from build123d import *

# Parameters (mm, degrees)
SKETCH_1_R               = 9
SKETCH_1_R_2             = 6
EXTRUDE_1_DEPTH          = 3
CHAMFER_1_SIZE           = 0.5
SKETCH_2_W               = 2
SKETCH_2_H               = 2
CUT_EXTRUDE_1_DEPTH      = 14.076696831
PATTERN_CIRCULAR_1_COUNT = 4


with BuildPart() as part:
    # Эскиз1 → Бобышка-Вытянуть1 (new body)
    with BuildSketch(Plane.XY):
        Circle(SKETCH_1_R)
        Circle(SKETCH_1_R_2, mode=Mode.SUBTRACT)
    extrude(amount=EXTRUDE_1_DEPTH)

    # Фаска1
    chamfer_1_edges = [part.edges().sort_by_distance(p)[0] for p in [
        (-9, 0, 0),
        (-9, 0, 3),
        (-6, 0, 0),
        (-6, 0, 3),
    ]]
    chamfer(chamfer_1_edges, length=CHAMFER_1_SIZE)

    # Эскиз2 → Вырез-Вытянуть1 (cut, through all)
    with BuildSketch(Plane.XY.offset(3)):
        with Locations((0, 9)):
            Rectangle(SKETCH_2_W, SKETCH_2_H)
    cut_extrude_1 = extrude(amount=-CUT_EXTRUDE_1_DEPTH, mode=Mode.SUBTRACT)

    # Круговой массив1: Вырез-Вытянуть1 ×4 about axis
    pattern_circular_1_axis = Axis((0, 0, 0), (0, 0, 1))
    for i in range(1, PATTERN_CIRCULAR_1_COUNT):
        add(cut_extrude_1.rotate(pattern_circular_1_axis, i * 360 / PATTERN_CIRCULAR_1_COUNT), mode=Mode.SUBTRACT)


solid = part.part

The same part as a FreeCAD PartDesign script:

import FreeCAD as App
import Part
import Sketcher
from FreeCAD import Vector
Q = App.Units.Quantity


def edges_at(feature, points):
    """Names of the edges that pass closest to the given points."""
    edges = feature.Shape.Edges
    near = lambda p: min(range(len(edges)), key=lambda i: edges[i].distToShape(Part.Vertex(*p))[0])
    return sorted({f"Edge{near(p) + 1}" for p in points})

doc = App.newDocument("Part")
body = doc.addObject("PartDesign::Body", "Body")

sketch1 = body.newObject("Sketcher::SketchObject", "Sketch")
sketch1.AttachmentSupport = (doc.getObject("XY_Plane"), [""])
sketch1.MapMode = "FlatFace"
sketch1.addGeometry([
    Part.Circle(Vector(0, 0, 0), Vector(0, 0, 1), 9),
    Part.Circle(Vector(0, 0, 0), Vector(0, 0, 1), 6),
], False)
sketch1.addConstraint([
    Sketcher.Constraint("Coincident", 0, 3, -1, 1),
    Sketcher.Constraint("Coincident", 1, 3, -1, 1),
    Sketcher.Constraint("Diameter", 0, Q("18 mm")),
    Sketcher.Constraint("Diameter", 1, Q("12 mm")),
])
pad1 = body.newObject("PartDesign::Pad", "Pad")
pad1.Profile = sketch1
pad1.Length = 3
doc.recompute()

chamfer = body.newObject("PartDesign::Chamfer", "Chamfer")
chamfer.Base = (pad1, edges_at(pad1, [
    (-9, 0, 0),
    (-9, 0, 3),
    (-6, 0, 0),
    (-6, 0, 3),
]))
chamfer.Size = 0.5

sketch2 = body.newObject("Sketcher::SketchObject", "Sketch001")
sketch2.AttachmentSupport = (doc.getObject("XY_Plane"), [""])
sketch2.MapMode = "FlatFace"
sketch2.AttachmentOffset = App.Placement(Vector(0, 0, 3), App.Rotation())
sketch2.addGeometry([
    Part.LineSegment(Vector(-1, 10, 0), Vector(-1, 8, 0)),
    Part.LineSegment(Vector(-1, 8, 0), Vector(1, 8, 0)),
    Part.LineSegment(Vector(1, 8, 0), Vector(1, 10, 0)),
    Part.LineSegment(Vector(1, 10, 0), Vector(-1, 10, 0)),
], False)
sketch2.addConstraint([
    Sketcher.Constraint("Coincident", 0, 2, 1, 1),
    Sketcher.Constraint("Coincident", 1, 2, 2, 1),
    Sketcher.Constraint("Coincident", 2, 2, 3, 1),
    Sketcher.Constraint("Coincident", 3, 2, 0, 1),
    Sketcher.Constraint("Vertical", 0),
    Sketcher.Constraint("Horizontal", 1),
    Sketcher.Constraint("Vertical", 2),
    Sketcher.Constraint("Horizontal", 3),
    Sketcher.Constraint("Equal", 3, 0),
    Sketcher.Constraint("DistanceX", 1, 1, 1, 2, Q("2 mm")),
    Sketcher.Constraint("DistanceX", 0, 2, -1, 1, Q("1 mm")),
    Sketcher.Constraint("DistanceY", -1, 1, 0, 2, Q("8 mm")),
])
pocket1 = body.newObject("PartDesign::Pocket", "Pocket")
pocket1.Profile = sketch2
pocket1.Type = "ThroughAll"
doc.recompute()

polarpattern = body.newObject("PartDesign::PolarPattern", "PolarPattern")
polarpattern.Originals = [pocket1]
polarpattern.Axis = (doc.getObject("Z_Axis"), [""])
polarpattern.Angle = 360
polarpattern.Occurrences = 4
body.Tip = polarpattern

doc.recompute()
